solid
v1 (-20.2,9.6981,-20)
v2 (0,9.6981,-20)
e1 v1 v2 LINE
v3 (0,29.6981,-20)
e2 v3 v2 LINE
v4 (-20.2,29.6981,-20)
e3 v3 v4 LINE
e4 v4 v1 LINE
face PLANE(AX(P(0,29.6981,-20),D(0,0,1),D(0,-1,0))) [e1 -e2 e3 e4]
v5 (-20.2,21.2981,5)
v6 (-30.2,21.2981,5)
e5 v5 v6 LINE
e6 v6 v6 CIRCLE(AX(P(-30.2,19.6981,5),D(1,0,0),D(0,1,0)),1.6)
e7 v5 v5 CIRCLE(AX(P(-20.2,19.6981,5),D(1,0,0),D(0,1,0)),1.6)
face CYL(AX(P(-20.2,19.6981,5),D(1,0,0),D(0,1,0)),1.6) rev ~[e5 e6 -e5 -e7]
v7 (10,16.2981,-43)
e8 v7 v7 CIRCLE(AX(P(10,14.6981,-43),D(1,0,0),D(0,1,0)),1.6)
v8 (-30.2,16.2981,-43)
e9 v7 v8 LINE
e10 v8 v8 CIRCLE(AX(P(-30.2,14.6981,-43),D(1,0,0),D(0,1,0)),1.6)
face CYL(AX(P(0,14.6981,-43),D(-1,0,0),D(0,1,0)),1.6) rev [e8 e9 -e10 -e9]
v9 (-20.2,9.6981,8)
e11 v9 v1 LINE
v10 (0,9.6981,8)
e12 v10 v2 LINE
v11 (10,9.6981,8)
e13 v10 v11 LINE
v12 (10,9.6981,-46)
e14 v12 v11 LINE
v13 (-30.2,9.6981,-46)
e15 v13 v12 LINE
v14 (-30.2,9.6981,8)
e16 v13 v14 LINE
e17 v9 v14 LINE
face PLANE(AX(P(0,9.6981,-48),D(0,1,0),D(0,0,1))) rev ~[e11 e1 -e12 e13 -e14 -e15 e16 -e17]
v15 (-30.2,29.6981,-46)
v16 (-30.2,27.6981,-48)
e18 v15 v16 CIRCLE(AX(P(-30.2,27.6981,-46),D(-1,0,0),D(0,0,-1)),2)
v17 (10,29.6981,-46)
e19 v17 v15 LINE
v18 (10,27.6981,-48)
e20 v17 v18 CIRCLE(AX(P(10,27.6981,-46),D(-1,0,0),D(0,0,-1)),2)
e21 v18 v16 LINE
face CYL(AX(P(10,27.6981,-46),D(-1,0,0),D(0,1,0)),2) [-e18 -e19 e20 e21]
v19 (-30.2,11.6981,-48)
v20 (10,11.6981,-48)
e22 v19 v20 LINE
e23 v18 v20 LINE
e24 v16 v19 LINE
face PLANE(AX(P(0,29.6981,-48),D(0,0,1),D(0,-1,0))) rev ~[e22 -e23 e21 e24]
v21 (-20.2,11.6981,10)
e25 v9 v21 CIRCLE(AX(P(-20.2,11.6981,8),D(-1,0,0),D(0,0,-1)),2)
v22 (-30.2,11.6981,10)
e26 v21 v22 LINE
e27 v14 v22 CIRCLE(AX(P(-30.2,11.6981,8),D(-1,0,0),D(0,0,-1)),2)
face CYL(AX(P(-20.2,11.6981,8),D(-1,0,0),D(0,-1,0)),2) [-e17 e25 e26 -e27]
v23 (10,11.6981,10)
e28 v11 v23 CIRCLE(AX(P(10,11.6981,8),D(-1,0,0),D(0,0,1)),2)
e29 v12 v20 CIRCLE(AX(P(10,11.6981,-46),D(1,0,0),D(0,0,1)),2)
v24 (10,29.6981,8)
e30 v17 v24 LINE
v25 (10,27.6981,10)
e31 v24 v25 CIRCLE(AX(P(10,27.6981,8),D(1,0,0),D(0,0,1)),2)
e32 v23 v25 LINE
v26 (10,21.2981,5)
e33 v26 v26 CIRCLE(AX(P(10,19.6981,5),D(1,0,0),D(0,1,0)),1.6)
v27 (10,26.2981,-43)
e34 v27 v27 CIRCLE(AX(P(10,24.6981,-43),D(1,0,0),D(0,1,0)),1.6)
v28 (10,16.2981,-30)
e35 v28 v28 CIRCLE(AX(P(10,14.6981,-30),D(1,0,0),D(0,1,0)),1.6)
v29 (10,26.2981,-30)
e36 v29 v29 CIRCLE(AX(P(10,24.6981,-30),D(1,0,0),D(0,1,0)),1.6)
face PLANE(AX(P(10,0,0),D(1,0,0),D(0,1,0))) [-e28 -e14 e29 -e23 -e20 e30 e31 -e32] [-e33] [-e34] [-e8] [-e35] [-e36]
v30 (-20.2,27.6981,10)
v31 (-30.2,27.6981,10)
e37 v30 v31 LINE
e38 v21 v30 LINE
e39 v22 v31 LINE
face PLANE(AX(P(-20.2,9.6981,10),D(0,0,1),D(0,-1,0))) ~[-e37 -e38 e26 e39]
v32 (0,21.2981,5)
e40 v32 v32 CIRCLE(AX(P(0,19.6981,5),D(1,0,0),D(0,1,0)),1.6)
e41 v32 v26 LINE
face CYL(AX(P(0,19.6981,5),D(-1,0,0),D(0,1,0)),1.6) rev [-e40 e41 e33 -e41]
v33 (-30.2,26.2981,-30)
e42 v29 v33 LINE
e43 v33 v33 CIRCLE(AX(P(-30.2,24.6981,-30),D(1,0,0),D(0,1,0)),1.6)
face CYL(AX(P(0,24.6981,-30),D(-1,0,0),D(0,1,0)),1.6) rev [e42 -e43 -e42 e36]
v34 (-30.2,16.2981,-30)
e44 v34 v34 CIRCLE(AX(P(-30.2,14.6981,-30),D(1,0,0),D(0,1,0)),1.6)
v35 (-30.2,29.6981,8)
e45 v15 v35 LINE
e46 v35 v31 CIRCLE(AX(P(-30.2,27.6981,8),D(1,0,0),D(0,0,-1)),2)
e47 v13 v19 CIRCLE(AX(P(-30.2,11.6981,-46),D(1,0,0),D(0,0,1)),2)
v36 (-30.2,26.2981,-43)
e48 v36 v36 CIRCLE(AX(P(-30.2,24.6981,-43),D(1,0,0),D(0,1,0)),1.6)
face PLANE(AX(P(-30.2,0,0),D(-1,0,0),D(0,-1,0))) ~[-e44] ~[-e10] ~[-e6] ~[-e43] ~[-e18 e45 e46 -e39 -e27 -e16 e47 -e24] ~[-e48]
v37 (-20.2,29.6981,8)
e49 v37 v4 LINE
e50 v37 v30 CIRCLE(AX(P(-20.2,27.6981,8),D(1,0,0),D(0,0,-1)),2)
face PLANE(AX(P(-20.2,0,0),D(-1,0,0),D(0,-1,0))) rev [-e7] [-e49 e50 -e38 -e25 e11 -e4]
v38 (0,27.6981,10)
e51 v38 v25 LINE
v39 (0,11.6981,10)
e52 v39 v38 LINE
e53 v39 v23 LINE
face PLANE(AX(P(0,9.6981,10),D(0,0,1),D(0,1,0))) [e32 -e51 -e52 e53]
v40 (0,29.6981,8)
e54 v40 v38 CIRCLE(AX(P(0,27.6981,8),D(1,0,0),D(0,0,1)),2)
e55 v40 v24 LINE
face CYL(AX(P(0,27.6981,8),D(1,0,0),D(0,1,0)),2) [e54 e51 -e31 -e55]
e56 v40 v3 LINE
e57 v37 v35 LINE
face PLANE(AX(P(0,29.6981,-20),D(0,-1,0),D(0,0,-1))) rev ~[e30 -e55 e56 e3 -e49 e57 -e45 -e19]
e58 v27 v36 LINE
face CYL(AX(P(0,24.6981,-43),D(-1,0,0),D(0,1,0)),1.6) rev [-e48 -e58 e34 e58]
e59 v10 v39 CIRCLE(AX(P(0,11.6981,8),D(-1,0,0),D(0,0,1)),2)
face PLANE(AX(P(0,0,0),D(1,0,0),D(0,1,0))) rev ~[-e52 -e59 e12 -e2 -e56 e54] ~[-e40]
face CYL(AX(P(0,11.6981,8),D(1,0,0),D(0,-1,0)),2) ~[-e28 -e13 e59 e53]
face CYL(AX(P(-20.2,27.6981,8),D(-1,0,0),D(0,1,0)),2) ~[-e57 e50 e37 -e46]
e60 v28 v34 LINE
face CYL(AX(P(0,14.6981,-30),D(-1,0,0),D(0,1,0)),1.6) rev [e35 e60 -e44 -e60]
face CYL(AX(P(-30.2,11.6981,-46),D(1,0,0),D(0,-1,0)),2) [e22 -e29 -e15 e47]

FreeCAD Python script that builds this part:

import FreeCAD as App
import Part
import Sketcher


def edges_at(feature, points):
    """Names of the edges that pass closest to the given points."""
    edges = feature.Shape.Edges
    near = lambda p: min(range(len(edges)), key=lambda i: edges[i].distToShape(Part.Vertex(*p))[0])
    return sorted({f"Edge{near(p) + 1}" for p in points})


def add_polygon(sketch, points):
    """Adds a closed chain of lines whose ends are joined by coincident constraints."""
    first, n = sketch.GeometryCount, len(points)
    for a, b in zip(points, points[1:] + points[:1]):
        sketch.addGeometry(Part.LineSegment(App.Vector(*a, 0), App.Vector(*b, 0)), False)
    for i in range(n):
        sketch.addConstraint(Sketcher.Constraint("Coincident", first + i, 2, first + (i + 1) % n, 1))

doc = App.newDocument("Part")
body = doc.addObject("PartDesign::Body", "Body")

# Sketch on YZ plane
sketch1 = body.newObject("Sketcher::SketchObject", "Sketch")
sketch1.AttachmentSupport = (doc.getObject("YZ_Plane"), [""])
sketch1.MapMode = "FlatFace"
add_polygon(sketch1, [(9.7, 10), (9.7, -48), (29.7, -48), (29.7, 10)])  # lines 0-3
sketch1.addGeometry(Part.Circle(App.Vector(19.7, 5, 0), App.Vector(0, 0, 1), 1.6), False)  # 4
sketch1.addGeometry(Part.Circle(App.Vector(24.7, -30, 0), App.Vector(0, 0, 1), 1.6), False)  # 5
sketch1.addGeometry(Part.Circle(App.Vector(14.7, -43, 0), App.Vector(0, 0, 1), 1.6), False)  # 6
sketch1.addGeometry(Part.Circle(App.Vector(14.7, -30, 0), App.Vector(0, 0, 1), 1.6), False)  # 7
sketch1.addGeometry(Part.Circle(App.Vector(24.7, -43, 0), App.Vector(0, 0, 1), 1.6), False)  # 8
sketch1.addConstraint(Sketcher.Constraint("Vertical", 0))
sketch1.addConstraint(Sketcher.Constraint("Horizontal", 1))
sketch1.addConstraint(Sketcher.Constraint("Vertical", 2))
sketch1.addConstraint(Sketcher.Constraint("Horizontal", 3))
sketch1.addConstraint(Sketcher.Constraint("Equal", 4, 5))
sketch1.addConstraint(Sketcher.Constraint("Equal", 5, 6))
sketch1.addConstraint(Sketcher.Constraint("Equal", 6, 7))
sketch1.addConstraint(Sketcher.Constraint("Equal", 7, 8))
sketch1.addConstraint(Sketcher.Constraint("Horizontal", 5, 3, 7, 3))
sketch1.addConstraint(Sketcher.Constraint("Horizontal", 6, 3, 8, 3))
sketch1.addConstraint(Sketcher.Constraint("Vertical", 6, 3, 7, 3))
sketch1.addConstraint(Sketcher.Constraint("Vertical", 5, 3, 8, 3))
sketch1.addConstraint(Sketcher.Constraint("Diameter", 4, 3.2))
sketch1.addConstraint(Sketcher.Constraint("DistanceX", 1, 1, 1, 2, 20.0))
sketch1.addConstraint(Sketcher.Constraint("DistanceY", -1, 1, 4, 3, 5.0))
sketch1.addConstraint(Sketcher.Constraint("DistanceY", -1, 1, 2, 2, 10.0))
sketch1.addConstraint(Sketcher.Constraint("DistanceX", 4, 3, 5, 3, 5.0))
sketch1.addConstraint(Sketcher.Constraint("DistanceX", 6, 3, 5, 3, 10.0))
sketch1.addConstraint(Sketcher.Constraint("DistanceY", 6, 3, 5, 3, 13.0))
sketch1.addConstraint(Sketcher.Constraint("DistanceX", 0, 2, 6, 3, 5.0))
sketch1.addConstraint(Sketcher.Constraint("DistanceY", 0, 2, 6, 3, 5.0))
sketch1.addConstraint(Sketcher.Constraint("DistanceY", 0, 2, 0, 1, 58.0))
sketch1.addConstraint(Sketcher.Constraint("DistanceX", -1, 1, 4, 3, 19.698))
pad1 = body.newObject("PartDesign::Pad", "Pad")
pad1.Profile = sketch1
pad1.Length = 10

# Sketch on YZ plane
sketch2 = body.newObject("Sketcher::SketchObject", "Sketch001")
sketch2.AttachmentSupport = (doc.getObject("YZ_Plane"), [""])
sketch2.MapMode = "FlatFace"
add_polygon(sketch2, [(29.7, -20), (9.7, -20), (9.7, -48), (29.7, -48)])  # lines 0-3
sketch2.addGeometry(Part.Circle(App.Vector(14.7, -43, 0), App.Vector(0, 0, 1), 1.6), False)  # 4
sketch2.addGeometry(Part.Circle(App.Vector(14.7, -30, 0), App.Vector(0, 0, 1), 1.6), False)  # 5
sketch2.addGeometry(Part.Circle(App.Vector(24.7, -43, 0), App.Vector(0, 0, 1), 1.6), False)  # 6
sketch2.addGeometry(Part.Circle(App.Vector(24.7, -30, 0), App.Vector(0, 0, 1), 1.6), False)  # 7
sketch2.addConstraint(Sketcher.Constraint("Horizontal", 0))
sketch2.addConstraint(Sketcher.Constraint("Vertical", 1))
sketch2.addConstraint(Sketcher.Constraint("Horizontal", 2))
sketch2.addConstraint(Sketcher.Constraint("Vertical", 3))
sketch2.addConstraint(Sketcher.Constraint("Equal", 4, 5))
sketch2.addConstraint(Sketcher.Constraint("Equal", 5, 6))
sketch2.addConstraint(Sketcher.Constraint("Equal", 6, 7))
sketch2.addConstraint(Sketcher.Constraint("Horizontal", 4, 3, 6, 3))
sketch2.addConstraint(Sketcher.Constraint("Horizontal", 5, 3, 7, 3))
sketch2.addConstraint(Sketcher.Constraint("Vertical", 4, 3, 5, 3))
sketch2.addConstraint(Sketcher.Constraint("Vertical", 6, 3, 7, 3))
sketch2.addConstraint(Sketcher.Constraint("Diameter", 4, 3.2))
sketch2.addConstraint(Sketcher.Constraint("DistanceX", 0, 2, 0, 1, 20.0))
sketch2.addConstraint(Sketcher.Constraint("DistanceY", 0, 2, -1, 1, 20.0))
sketch2.addConstraint(Sketcher.Constraint("DistanceY", 4, 3, 5, 3, 13.0))
sketch2.addConstraint(Sketcher.Constraint("DistanceX", 4, 3, 6, 3, 10.0))
sketch2.addConstraint(Sketcher.Constraint("DistanceX", 0, 2, 5, 3, 5.0))
sketch2.addConstraint(Sketcher.Constraint("DistanceY", 5, 3, 0, 2, 10.0))
sketch2.addConstraint(Sketcher.Constraint("DistanceY", 1, 2, 4, 3, 5.0))
sketch2.addConstraint(Sketcher.Constraint("DistanceX", -1, 1, 4, 3, 14.698))
pad2 = body.newObject("PartDesign::Pad", "Pad001")
pad2.Profile = sketch2
pad2.Length = 10.1
pad2.Reversed = True
doc.recompute()

datumplane = body.newObject("PartDesign::Plane", "DatumPlane")
datumplane.AttachmentSupport = (doc.getObject("YZ_Plane"), [""])
datumplane.MapMode = "FlatFace"
datumplane.AttachmentOffset = App.Placement(App.Vector(0, 0, -10.1), App.Rotation())
mirrored = body.newObject("PartDesign::Mirrored", "Mirrored")
mirrored.TransformMode = "Transform body"
mirrored.MirrorPlane = (datumplane, [""])
body.Tip = mirrored
doc.recompute()

fillet = body.newObject("PartDesign::Fillet", "Fillet")
fillet.Base = (mirrored, edges_at(mirrored, [
    (5, 29.698, 10),
    (5, 9.698, 10),
    (-25.2, 29.698, 10),
    (-25.2, 9.698, 10),
    (-10.1, 29.698, -48),
    (-10.1, 9.698, -48),
]))
fillet.Radius = 2

doc.recompute()
